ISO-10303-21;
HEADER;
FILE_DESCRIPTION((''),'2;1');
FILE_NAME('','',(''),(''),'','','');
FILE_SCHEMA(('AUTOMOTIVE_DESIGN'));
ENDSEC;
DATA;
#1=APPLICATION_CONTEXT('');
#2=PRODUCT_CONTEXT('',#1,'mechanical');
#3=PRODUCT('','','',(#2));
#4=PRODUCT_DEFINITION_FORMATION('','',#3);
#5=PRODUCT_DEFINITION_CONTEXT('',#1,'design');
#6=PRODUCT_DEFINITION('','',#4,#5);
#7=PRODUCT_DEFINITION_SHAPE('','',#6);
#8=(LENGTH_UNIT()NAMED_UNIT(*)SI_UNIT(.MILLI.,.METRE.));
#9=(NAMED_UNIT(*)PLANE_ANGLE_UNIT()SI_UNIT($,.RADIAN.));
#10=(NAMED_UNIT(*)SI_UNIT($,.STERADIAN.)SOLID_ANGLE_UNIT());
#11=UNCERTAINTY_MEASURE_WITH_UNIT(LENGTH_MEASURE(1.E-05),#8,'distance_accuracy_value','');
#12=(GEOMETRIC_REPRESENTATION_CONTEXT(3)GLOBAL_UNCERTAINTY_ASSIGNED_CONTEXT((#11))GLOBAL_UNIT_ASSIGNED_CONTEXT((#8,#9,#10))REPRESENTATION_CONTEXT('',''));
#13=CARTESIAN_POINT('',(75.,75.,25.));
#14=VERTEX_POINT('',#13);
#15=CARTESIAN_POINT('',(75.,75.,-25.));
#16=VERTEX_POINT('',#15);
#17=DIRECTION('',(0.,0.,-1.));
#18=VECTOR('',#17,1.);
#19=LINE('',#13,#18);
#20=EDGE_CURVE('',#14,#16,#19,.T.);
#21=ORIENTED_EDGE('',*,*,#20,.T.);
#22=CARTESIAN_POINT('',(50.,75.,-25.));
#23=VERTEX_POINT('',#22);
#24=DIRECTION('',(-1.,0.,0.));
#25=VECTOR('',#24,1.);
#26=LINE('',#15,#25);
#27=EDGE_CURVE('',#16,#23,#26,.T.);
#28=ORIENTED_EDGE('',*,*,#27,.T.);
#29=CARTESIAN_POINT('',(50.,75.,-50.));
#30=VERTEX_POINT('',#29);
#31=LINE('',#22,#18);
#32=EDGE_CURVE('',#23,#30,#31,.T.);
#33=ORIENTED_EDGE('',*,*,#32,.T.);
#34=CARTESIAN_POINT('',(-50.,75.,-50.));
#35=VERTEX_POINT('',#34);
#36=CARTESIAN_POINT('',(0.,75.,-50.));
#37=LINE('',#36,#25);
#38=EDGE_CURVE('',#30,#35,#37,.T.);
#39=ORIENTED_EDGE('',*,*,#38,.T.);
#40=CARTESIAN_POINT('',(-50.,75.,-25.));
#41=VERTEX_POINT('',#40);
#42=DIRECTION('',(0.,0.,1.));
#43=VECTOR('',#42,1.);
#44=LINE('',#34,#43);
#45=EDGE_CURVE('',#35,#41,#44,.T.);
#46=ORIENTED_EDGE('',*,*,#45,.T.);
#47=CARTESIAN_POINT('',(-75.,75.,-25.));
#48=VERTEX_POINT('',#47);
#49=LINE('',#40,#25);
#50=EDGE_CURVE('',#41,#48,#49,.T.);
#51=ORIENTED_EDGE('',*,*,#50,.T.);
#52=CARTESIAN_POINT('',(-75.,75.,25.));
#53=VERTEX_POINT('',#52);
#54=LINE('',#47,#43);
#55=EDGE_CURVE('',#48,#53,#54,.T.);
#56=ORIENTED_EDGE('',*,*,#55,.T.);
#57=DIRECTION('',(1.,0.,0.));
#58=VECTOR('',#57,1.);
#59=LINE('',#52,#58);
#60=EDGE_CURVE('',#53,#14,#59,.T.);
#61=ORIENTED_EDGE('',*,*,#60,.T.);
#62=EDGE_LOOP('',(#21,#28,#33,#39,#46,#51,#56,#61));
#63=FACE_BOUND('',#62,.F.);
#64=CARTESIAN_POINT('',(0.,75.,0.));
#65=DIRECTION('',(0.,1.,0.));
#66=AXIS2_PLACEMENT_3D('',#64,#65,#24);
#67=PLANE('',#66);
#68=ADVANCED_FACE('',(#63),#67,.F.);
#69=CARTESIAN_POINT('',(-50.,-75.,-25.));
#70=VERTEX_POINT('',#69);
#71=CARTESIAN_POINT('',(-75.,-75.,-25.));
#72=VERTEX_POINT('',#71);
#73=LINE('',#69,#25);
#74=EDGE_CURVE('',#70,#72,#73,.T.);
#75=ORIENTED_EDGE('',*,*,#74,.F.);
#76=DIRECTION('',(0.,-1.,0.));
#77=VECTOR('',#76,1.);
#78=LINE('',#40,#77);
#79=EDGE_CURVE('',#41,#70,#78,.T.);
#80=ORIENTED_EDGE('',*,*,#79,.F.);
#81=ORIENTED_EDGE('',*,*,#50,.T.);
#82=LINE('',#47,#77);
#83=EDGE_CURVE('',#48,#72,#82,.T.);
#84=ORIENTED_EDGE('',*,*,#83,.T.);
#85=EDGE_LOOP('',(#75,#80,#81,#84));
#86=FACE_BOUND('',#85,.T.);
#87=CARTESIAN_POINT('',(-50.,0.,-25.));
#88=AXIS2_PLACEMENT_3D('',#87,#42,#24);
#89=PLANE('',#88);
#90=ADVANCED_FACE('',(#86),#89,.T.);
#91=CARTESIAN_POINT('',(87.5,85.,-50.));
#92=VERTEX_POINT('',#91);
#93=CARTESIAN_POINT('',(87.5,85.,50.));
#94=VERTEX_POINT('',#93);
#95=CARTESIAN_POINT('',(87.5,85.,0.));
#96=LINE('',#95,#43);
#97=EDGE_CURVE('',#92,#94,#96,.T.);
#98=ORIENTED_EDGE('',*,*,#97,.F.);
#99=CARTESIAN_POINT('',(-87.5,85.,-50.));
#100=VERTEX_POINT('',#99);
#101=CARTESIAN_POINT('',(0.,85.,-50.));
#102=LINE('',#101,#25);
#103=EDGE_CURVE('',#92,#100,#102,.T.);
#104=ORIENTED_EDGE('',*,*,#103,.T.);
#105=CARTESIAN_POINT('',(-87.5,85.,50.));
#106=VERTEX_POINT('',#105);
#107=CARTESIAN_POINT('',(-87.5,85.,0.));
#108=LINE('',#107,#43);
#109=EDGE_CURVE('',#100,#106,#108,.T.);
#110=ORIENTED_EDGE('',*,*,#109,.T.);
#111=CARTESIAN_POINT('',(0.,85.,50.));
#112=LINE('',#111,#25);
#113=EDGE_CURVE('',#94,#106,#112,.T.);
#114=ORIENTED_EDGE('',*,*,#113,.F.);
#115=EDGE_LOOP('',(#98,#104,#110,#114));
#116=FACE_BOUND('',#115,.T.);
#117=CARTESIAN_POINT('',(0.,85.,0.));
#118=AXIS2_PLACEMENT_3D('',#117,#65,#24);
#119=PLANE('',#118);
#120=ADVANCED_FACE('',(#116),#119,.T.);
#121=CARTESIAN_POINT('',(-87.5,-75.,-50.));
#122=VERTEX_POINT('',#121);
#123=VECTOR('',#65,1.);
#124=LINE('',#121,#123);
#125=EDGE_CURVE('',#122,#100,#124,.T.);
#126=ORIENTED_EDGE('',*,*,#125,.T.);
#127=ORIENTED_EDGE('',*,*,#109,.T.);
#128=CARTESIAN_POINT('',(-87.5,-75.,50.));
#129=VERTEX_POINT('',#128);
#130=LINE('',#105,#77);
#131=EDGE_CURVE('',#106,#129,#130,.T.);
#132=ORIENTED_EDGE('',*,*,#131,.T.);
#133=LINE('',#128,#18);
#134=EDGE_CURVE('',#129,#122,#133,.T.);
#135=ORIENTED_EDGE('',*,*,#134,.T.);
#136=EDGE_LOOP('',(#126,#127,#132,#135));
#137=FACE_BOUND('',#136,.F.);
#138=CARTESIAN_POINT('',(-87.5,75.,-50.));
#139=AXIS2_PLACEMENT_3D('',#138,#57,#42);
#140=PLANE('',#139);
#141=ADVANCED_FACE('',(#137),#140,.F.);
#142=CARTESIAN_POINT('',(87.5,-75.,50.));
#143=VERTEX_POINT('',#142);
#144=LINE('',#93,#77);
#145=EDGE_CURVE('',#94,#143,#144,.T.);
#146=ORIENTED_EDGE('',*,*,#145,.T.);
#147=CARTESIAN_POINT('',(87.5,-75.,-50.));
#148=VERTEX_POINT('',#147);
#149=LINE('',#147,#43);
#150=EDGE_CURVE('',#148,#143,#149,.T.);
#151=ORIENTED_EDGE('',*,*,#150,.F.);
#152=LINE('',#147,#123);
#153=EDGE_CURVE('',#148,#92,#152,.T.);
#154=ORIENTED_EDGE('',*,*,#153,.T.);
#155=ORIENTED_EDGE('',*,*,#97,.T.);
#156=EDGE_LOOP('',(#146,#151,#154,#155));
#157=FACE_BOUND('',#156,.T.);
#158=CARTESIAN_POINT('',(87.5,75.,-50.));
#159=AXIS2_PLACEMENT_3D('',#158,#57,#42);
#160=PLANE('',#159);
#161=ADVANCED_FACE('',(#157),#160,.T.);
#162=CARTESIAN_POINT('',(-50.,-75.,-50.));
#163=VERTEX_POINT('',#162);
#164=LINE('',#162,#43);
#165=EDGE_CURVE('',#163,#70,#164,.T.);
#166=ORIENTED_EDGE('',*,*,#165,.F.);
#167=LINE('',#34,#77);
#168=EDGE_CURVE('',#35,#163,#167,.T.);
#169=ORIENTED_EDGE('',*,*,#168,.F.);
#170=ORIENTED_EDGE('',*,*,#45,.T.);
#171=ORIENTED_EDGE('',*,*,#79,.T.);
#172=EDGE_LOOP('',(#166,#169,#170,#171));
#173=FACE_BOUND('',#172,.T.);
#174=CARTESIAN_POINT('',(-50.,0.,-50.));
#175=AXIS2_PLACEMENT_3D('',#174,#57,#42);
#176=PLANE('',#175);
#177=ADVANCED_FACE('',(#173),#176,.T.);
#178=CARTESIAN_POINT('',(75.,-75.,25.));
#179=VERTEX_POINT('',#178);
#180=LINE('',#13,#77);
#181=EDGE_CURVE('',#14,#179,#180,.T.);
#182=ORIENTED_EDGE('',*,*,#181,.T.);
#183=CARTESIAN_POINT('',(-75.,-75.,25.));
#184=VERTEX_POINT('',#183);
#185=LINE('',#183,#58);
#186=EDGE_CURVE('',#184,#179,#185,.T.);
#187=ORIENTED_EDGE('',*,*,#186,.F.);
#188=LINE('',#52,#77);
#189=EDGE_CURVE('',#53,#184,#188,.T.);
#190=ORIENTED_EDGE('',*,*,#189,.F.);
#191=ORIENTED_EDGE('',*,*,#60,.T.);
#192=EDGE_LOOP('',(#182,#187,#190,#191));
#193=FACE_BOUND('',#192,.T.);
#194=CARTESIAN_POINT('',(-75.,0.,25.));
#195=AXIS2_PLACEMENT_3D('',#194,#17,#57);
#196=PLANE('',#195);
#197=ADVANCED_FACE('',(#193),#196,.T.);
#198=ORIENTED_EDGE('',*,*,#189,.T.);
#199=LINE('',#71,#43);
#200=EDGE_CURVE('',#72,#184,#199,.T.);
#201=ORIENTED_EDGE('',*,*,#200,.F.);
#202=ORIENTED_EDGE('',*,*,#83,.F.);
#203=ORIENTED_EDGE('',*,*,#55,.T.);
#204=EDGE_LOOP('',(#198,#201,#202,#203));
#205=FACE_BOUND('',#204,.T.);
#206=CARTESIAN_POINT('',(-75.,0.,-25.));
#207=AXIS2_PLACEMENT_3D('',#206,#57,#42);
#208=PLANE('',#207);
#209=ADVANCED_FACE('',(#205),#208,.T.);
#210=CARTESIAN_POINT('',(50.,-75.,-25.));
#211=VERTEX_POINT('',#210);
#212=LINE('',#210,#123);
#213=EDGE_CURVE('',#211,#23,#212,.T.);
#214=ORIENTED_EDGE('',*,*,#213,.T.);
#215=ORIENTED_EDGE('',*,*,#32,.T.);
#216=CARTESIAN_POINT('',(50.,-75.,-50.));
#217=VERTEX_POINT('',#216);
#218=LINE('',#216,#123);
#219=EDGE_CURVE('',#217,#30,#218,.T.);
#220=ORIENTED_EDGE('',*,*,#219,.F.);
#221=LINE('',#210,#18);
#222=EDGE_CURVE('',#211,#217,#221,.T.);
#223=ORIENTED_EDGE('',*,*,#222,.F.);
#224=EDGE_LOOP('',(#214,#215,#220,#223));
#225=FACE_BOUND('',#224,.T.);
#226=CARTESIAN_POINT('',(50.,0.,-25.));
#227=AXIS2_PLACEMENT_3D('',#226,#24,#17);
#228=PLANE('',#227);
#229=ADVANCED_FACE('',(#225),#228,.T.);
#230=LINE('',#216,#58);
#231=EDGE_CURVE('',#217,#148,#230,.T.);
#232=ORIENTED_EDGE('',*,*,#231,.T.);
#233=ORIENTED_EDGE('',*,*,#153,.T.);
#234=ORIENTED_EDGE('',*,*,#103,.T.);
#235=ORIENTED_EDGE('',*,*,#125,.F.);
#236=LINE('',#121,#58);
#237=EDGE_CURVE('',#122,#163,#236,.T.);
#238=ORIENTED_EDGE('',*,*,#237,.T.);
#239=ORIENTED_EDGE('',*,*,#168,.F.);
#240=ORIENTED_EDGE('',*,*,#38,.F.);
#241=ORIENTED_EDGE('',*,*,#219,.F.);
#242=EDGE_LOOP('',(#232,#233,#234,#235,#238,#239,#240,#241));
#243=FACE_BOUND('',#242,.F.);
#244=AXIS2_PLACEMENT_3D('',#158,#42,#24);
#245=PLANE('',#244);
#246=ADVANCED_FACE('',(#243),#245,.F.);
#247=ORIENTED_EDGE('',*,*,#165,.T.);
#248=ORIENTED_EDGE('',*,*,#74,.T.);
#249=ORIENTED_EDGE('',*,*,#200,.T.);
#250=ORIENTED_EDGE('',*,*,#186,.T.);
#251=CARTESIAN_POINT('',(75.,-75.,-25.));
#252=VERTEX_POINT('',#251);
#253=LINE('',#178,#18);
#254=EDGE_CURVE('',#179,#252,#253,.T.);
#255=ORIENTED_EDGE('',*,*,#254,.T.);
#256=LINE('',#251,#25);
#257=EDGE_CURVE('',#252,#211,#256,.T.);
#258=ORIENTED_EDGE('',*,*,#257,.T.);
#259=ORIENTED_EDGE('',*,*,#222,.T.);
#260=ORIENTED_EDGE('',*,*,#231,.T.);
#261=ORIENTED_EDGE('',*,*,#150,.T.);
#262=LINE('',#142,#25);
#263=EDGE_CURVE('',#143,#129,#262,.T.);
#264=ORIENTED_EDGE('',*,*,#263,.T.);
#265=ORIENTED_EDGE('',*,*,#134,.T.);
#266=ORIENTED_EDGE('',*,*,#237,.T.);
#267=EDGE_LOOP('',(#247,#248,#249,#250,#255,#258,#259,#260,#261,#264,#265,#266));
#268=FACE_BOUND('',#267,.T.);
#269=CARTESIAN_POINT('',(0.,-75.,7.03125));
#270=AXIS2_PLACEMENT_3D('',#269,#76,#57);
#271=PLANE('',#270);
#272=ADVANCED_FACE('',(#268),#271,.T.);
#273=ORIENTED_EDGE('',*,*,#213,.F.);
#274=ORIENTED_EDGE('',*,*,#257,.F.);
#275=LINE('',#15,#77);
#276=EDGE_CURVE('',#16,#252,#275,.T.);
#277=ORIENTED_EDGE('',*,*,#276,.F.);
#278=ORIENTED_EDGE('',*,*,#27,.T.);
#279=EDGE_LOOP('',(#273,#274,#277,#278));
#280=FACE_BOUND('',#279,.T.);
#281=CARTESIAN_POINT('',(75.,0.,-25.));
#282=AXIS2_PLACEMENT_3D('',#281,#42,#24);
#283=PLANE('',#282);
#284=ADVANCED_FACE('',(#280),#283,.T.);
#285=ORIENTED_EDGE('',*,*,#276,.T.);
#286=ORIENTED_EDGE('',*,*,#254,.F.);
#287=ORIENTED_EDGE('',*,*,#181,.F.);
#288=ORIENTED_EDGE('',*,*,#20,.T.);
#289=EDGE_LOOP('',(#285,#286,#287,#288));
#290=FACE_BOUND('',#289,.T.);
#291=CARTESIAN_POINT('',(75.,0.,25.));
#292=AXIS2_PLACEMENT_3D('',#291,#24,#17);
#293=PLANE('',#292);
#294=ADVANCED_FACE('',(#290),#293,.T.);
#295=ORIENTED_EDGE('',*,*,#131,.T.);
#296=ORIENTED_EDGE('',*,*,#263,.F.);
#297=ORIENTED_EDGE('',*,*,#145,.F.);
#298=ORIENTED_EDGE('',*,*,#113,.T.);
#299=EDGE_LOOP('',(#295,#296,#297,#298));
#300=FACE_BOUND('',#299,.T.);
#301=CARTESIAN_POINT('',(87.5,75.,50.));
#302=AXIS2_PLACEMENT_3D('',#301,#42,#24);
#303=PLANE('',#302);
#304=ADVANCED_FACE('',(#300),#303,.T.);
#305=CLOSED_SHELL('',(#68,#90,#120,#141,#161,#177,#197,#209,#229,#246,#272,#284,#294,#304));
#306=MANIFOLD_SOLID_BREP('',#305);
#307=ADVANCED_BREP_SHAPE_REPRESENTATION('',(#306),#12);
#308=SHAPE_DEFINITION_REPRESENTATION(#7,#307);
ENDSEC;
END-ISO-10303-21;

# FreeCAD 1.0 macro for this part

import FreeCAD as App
import Part
import Sketcher

V = App.Vector


def add_polygon(sketch, points):
    """Adds a closed chain of lines whose ends are joined by coincident constraints."""
    first, n = sketch.GeometryCount, len(points)
    for a, b in zip(points, points[1:] + points[:1]):
        sketch.addGeometry(Part.LineSegment(App.Vector(*a, 0), App.Vector(*b, 0)), False)
    for i in range(n):
        sketch.addConstraint(Sketcher.Constraint("Coincident", first + i, 2, first + (i + 1) % n, 1))

doc = App.newDocument("Part")
params = doc.addObject("Spreadsheet::Sheet", "Params")
for row, (alias, value) in enumerate([
    ("sketch1_width", "175 mm"),
    ("sketch1_width2", "25 mm"),
    ("sketch1_width3", "150 mm"),
    ("sketch1_height", "100 mm"),
    ("pad1_length", "75 mm"),
    ("pad1_length2", "75 mm"),
    ("sketch2_width", "175 mm"),
    ("sketch2_height", "100 mm"),
    ("pad2_length", "10 mm"),
], start=1):
    params.set(f"A{row}", alias)
    params.set(f"B{row}", "=" + value)
    params.setAlias(f"B{row}", alias)

body = doc.addObject("PartDesign::Body", "Body")

# Sketch on XZ plane
sketch1 = body.newObject("Sketcher::SketchObject", "Sketch")
sketch1.AttachmentSupport = (doc.getObject("XZ_Plane"), [""])
sketch1.MapMode = "FlatFace"
add_polygon(sketch1, [(87.5, -50), (87.5, 50), (-87.5, 50), (-87.5, -50), (-50, -50), (-50, -25), (-75, -25), (-75, 25), (75, 25), (75, -25), (50, -25), (50, -50)])  # lines 0-11
sketch1.addConstraint([
    Sketcher.Constraint("Vertical", 0),
    Sketcher.Constraint("Horizontal", 1),
    Sketcher.Constraint("Vertical", 2),
    Sketcher.Constraint("Horizontal", 3),
    Sketcher.Constraint("Vertical", 4),
    Sketcher.Constraint("Horizontal", 5),
    Sketcher.Constraint("Vertical", 6),
    Sketcher.Constraint("Horizontal", 7),
    Sketcher.Constraint("Vertical", 8),
    Sketcher.Constraint("Horizontal", 9),
    Sketcher.Constraint("Vertical", 10),
    Sketcher.Constraint("Horizontal", 11),
    Sketcher.Constraint("Symmetric", 0, 2, 2, 2, -1, 1),
    Sketcher.Constraint("Symmetric", 5, 2, 7, 2, -1, 1),
    Sketcher.Constraint("Symmetric", 4, 2, 9, 2, -2),
    Sketcher.Constraint("Horizontal", 3, 2, 10, 2),
    Sketcher.Constraint("Equal", 9, 4),
    Sketcher.Constraint("DistanceX", 1, 2, 1, 1, 175.0),
    Sketcher.Constraint("DistanceX", 5, 2, 5, 1, 25.0),
    Sketcher.Constraint("DistanceX", 7, 1, 7, 2, 150.0),
    Sketcher.Constraint("DistanceY", 0, 1, 0, 2, 100.0),
])
sketch1.setExpression("Constraints[29]", "Params.sketch1_width")
sketch1.setExpression("Constraints[30]", "Params.sketch1_width2")
sketch1.setExpression("Constraints[31]", "Params.sketch1_width3")
sketch1.setExpression("Constraints[32]", "Params.sketch1_height")
pad1 = body.newObject("PartDesign::Pad", "Pad")
pad1.Profile = sketch1
pad1.Type = "TwoLengths"
pad1.setExpression("Length", "Params.pad1_length")
pad1.setExpression("Length2", "Params.pad1_length2")

# Sketch on XZ plane
sketch2 = body.newObject("Sketcher::SketchObject", "Sketch001")
sketch2.AttachmentSupport = (doc.getObject("XZ_Plane"), [""])
sketch2.MapMode = "FlatFace"
sketch2.AttachmentOffset = App.Placement(V(0, 0, -75), App.Rotation())
add_polygon(sketch2, [(87.5, 50), (87.5, -50), (-87.5, -50), (-87.5, 50)])  # lines 0-3
sketch2.addConstraint([
    Sketcher.Constraint("Vertical", 0),
    Sketcher.Constraint("Horizontal", 1),
    Sketcher.Constraint("Vertical", 2),
    Sketcher.Constraint("Horizontal", 3),
    Sketcher.Constraint("Symmetric", 0, 2, 2, 2, -1, 1),
    Sketcher.Constraint("DistanceX", 1, 2, 1, 1, 175.0),
    Sketcher.Constraint("DistanceY", 0, 2, 0, 1, 100.0),
])
sketch2.setExpression("Constraints[9]", "Params.sketch2_width")
sketch2.setExpression("Constraints[10]", "Params.sketch2_height")
pad2 = body.newObject("PartDesign::Pad", "Pad001")
pad2.Profile = sketch2
pad2.setExpression("Length", "Params.pad2_length")
pad2.Reversed = True

doc.recompute()
